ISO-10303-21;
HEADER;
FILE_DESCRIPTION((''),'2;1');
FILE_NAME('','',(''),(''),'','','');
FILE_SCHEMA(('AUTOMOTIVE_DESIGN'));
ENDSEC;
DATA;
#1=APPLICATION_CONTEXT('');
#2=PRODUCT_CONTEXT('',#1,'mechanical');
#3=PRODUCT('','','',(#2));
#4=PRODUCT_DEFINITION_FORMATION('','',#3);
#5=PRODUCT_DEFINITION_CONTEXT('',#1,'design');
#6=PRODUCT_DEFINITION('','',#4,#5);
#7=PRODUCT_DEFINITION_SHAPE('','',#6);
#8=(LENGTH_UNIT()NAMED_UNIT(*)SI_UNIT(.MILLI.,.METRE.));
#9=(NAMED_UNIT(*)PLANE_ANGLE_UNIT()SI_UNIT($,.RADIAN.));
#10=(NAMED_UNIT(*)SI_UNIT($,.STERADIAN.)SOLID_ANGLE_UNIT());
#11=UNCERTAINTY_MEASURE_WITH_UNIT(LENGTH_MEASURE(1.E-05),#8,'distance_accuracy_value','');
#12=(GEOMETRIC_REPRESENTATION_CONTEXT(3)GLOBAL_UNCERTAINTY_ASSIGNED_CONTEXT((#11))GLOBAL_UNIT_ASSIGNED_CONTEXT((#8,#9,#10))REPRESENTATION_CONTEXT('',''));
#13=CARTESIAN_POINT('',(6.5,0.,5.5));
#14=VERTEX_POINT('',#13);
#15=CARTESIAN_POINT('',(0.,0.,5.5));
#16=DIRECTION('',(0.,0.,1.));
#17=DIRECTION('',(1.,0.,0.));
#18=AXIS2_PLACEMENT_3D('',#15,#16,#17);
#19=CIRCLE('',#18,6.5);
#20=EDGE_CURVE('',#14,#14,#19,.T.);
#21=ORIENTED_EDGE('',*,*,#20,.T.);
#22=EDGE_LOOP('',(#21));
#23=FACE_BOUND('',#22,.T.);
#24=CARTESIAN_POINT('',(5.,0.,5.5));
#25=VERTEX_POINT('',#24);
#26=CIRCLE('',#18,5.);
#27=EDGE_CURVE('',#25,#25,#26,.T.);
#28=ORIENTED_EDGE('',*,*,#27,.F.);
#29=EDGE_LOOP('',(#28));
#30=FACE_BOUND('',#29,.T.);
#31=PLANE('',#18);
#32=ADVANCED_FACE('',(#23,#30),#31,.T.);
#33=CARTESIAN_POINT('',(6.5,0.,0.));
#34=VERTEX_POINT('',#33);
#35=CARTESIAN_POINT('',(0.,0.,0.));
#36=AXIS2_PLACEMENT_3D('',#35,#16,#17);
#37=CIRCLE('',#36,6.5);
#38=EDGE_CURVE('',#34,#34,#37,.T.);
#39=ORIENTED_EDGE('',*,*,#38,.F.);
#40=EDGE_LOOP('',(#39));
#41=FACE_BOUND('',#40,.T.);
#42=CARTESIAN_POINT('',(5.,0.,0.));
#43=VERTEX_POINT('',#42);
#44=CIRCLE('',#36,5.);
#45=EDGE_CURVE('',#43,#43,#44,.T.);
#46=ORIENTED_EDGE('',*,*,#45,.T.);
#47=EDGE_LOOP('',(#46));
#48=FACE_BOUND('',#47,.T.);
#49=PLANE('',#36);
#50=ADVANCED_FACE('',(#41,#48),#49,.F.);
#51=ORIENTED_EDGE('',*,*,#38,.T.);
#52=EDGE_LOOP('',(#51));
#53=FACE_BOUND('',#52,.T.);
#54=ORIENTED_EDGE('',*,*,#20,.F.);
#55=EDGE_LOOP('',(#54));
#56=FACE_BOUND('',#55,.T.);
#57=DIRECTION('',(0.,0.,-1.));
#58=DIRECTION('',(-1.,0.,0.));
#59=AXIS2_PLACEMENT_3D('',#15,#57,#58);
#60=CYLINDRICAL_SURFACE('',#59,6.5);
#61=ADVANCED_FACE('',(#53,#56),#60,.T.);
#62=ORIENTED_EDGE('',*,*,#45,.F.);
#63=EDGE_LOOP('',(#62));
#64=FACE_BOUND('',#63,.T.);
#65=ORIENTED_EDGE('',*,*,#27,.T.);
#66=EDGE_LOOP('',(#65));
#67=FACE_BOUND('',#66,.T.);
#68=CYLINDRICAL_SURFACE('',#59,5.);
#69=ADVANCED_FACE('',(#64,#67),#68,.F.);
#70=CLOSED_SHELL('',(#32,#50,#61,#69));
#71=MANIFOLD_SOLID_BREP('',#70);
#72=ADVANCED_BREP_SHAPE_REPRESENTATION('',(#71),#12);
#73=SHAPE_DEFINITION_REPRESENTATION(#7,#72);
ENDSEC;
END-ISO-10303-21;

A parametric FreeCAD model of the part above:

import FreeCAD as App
import Part
import Sketcher

V = App.Vector
Q = App.Units.Quantity

doc = App.newDocument("Part")
params = doc.addObject("Spreadsheet::Sheet", "Params")
for row, (alias, value) in enumerate([
    ("sketch1_diameter", "13 mm"),
    ("sketch1_diameter2", "10 mm"),
    ("pad1_length", "5.5 mm"),
], start=1):
    params.set(f"A{row}", alias)
    params.set(f"B{row}", "=" + value)
    params.setAlias(f"B{row}", alias)

body = doc.addObject("PartDesign::Body", "Body")

sketch1 = body.newObject("Sketcher::SketchObject", "Sketch")
sketch1.AttachmentSupport = (doc.getObject("XY_Plane"), [""])
sketch1.MapMode = "FlatFace"
sketch1.addGeometry([
    Part.Circle(V(0, 0, 0), V(0, 0, 1), 6),
    Part.Circle(V(0, 0, 0), V(0, 0, 1), 5),
], False)
sketch1.addConstraint([
    Sketcher.Constraint("Coincident", 0, 3, -1, 1),
    Sketcher.Constraint("Coincident", 1, 3, -1, 1),
    Sketcher.Constraint("Diameter", 0, Q("13 mm")),
    Sketcher.Constraint("Diameter", 1, Q("10 mm")),
])
sketch1.setExpression("Constraints[2]", "Params.sketch1_diameter")
sketch1.setExpression("Constraints[3]", "Params.sketch1_diameter2")
pad1 = body.newObject("PartDesign::Pad", "Pad")
pad1.Profile = sketch1
pad1.setExpression("Length", "Params.pad1_length")

doc.recompute()
